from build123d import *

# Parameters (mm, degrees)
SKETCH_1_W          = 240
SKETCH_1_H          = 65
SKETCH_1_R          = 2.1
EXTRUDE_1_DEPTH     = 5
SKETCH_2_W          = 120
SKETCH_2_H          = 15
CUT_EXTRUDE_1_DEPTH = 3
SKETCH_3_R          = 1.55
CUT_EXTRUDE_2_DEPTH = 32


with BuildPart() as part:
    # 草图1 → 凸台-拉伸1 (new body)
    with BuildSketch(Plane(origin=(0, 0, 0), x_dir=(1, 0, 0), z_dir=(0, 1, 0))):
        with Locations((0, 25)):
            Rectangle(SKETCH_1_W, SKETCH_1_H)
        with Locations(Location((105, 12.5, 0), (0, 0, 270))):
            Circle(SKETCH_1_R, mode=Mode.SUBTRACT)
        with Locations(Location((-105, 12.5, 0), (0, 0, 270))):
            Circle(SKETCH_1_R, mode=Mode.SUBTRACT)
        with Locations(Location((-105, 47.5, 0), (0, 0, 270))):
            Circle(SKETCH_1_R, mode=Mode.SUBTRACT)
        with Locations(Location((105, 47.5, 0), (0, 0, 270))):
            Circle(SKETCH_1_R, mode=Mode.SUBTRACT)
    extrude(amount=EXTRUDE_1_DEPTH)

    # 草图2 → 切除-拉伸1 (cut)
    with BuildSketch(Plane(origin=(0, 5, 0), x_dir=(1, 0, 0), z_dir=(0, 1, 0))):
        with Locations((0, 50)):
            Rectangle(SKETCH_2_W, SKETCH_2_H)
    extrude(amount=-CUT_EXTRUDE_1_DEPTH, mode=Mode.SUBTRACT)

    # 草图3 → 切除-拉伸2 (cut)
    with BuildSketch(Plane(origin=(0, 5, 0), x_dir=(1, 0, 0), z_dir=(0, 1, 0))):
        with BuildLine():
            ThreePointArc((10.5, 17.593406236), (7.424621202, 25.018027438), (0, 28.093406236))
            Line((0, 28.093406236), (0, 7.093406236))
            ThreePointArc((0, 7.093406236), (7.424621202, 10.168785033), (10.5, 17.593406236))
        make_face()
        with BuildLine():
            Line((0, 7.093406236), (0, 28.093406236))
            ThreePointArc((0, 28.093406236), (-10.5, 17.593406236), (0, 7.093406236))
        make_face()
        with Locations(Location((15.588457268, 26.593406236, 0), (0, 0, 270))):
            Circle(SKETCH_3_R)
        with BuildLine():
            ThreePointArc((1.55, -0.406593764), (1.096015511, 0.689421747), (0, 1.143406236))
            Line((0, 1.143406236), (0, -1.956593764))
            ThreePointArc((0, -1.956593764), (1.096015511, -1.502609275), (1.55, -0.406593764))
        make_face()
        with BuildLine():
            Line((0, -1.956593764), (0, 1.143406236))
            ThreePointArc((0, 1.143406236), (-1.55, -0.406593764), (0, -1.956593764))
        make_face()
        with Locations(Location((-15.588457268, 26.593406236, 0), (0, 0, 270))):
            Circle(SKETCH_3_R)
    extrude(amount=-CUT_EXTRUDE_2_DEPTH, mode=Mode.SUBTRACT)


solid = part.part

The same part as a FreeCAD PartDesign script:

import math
import FreeCAD as App
import Part
import Sketcher

V = App.Vector

doc = App.newDocument("Part")
body = doc.addObject("PartDesign::Body", "Body")

sketch1 = body.newObject("Sketcher::SketchObject", "Sketch")
sketch1.AttachmentSupport = (doc.getObject("XZ_Plane"), [""])
sketch1.MapMode = "FlatFace"
sketch1.addGeometry([
    Part.LineSegment(V(-120, -57.5, 0), V(-120, 7.5, 0)),
    Part.LineSegment(V(-120, 7.5, 0), V(120, 7.5, 0)),
    Part.LineSegment(V(120, 7.5, 0), V(120, -57.5, 0)),
    Part.LineSegment(V(120, -57.5, 0), V(-120, -57.5, 0)),
    Part.Circle(V(-105, -12.5, 0), V(0, 0, 1), 2.1),
    Part.Circle(V(105, -12.5, 0), V(0, 0, 1), 2.1),
    Part.Circle(V(-105, -47.5, 0), V(0, 0, 1), 2.1),
    Part.Circle(V(105, -47.5, 0), V(0, 0, 1), 2.1),
], False)
sketch1.addConstraint([
    Sketcher.Constraint("Coincident", 0, 2, 1, 1),
    Sketcher.Constraint("Coincident", 1, 2, 2, 1),
    Sketcher.Constraint("Coincident", 2, 2, 3, 1),
    Sketcher.Constraint("Coincident", 3, 2, 0, 1),
    Sketcher.Constraint("Vertical", 0),
    Sketcher.Constraint("Horizontal", 1),
    Sketcher.Constraint("Vertical", 2),
    Sketcher.Constraint("Horizontal", 3),
    Sketcher.Constraint("Equal", 4, 5),
    Sketcher.Constraint("Equal", 5, 6),
    Sketcher.Constraint("Equal", 6, 7),
    Sketcher.Constraint("Symmetric", 4, 3, 5, 3, -2),
    Sketcher.Constraint("Symmetric", 6, 3, 7, 3, -2),
    Sketcher.Constraint("Vertical", 4, 3, 6, 3),
    Sketcher.Constraint("Diameter", 4, 4.2),
    Sketcher.Constraint("DistanceX", 1, 1, 1, 2, 240.0),
    Sketcher.Constraint("DistanceY", 0, 1, 0, 2, 65.0),
    Sketcher.Constraint("DistanceX", 4, 3, -1, 1, 105.0),
    Sketcher.Constraint("DistanceX", 0, 2, -1, 1, 120.0),
    Sketcher.Constraint("DistanceY", 6, 3, 4, 3, 35.0),
    Sketcher.Constraint("DistanceY", 4, 3, 0, 2, 20.0),
    Sketcher.Constraint("DistanceY", 4, 3, -1, 1, 12.5),
])
pad1 = body.newObject("PartDesign::Pad", "Pad")
pad1.Profile = sketch1
pad1.Length = 5
pad1.Reversed = True

sketch2 = body.newObject("Sketcher::SketchObject", "Sketch001")
sketch2.AttachmentSupport = (doc.getObject("XZ_Plane"), [""])
sketch2.MapMode = "FlatFace"
sketch2.AttachmentOffset = App.Placement(V(0, 0, -5), App.Rotation())
sketch2.addGeometry([
    Part.LineSegment(V(-60, -57.5, 0), V(-60, -42.5, 0)),
    Part.LineSegment(V(-60, -42.5, 0), V(60, -42.5, 0)),
    Part.LineSegment(V(60, -42.5, 0), V(60, -57.5, 0)),
    Part.LineSegment(V(60, -57.5, 0), V(-60, -57.5, 0)),
], False)
sketch2.addConstraint([
    Sketcher.Constraint("Coincident", 0, 2, 1, 1),
    Sketcher.Constraint("Coincident", 1, 2, 2, 1),
    Sketcher.Constraint("Coincident", 2, 2, 3, 1),
    Sketcher.Constraint("Coincident", 3, 2, 0, 1),
    Sketcher.Constraint("Vertical", 0),
    Sketcher.Constraint("Horizontal", 1),
    Sketcher.Constraint("Vertical", 2),
    Sketcher.Constraint("Horizontal", 3),
    Sketcher.Constraint("DistanceX", 1, 1, 1, 2, 120.0),
    Sketcher.Constraint("DistanceY", 0, 1, 0, 2, 15.0),
    Sketcher.Constraint("DistanceX", 0, 2, -1, 1, 60.0),
    Sketcher.Constraint("DistanceY", 0, 2, -1, 1, 42.5),
])
pocket1 = body.newObject("PartDesign::Pocket", "Pocket")
pocket1.Profile = sketch2
pocket1.Length = 3
pocket1.Reversed = True

sketch3 = body.newObject("Sketcher::SketchObject", "Sketch002")
sketch3.AttachmentSupport = (doc.getObject("XZ_Plane"), [""])
sketch3.MapMode = "FlatFace"
sketch3.AttachmentOffset = App.Placement(V(0, 0, -5), App.Rotation())
sketch3.addGeometry([
    Part.ArcOfCircle(Part.Circle(V(0, -17.593406, 0), V(0, 0, 1), 10.5), math.radians(-90), math.radians(0)),
    Part.ArcOfCircle(Part.Circle(V(0, -17.593406, 0), V(0, 0, 1), 10.5), math.radians(90), math.radians(270)),
    Part.ArcOfCircle(Part.Circle(V(0, -17.593406, 0), V(0, 0, 1), 10.5), math.radians(0), math.radians(90)),
    Part.Circle(V(15.588457, -26.593406, 0), V(0, 0, 1), 1.55),
    Part.ArcOfCircle(Part.Circle(V(0, 0.406594, 0), V(0, 0, 1), 1.55), math.radians(-90), math.radians(0)),
    Part.ArcOfCircle(Part.Circle(V(0, 0.406594, 0), V(0, 0, 1), 1.55), math.radians(90), math.radians(270)),
    Part.ArcOfCircle(Part.Circle(V(0, 0.406594, 0), V(0, 0, 1), 1.55), math.radians(0), math.radians(90)),
    Part.Circle(V(-15.588457, -26.593406, 0), V(0, 0, 1), 1.55),
], False)
sketch3.addConstraint([
    Sketcher.Constraint("Tangent", 0, 1, 1, 2),
    Sketcher.Constraint("Tangent", 1, 1, 2, 2),
    Sketcher.Constraint("Tangent", 2, 1, 0, 2),
    Sketcher.Constraint("Tangent", 4, 1, 5, 2),
    Sketcher.Constraint("Tangent", 5, 1, 6, 2),
    Sketcher.Constraint("Tangent", 6, 1, 4, 2),
    Sketcher.Constraint("Equal", 3, 4),
    Sketcher.Constraint("Equal", 6, 7),
    Sketcher.Constraint("Symmetric", 3, 3, 7, 3, -2),
    Sketcher.Constraint("PointOnObject", 0, 3, -2),
    Sketcher.Constraint("PointOnObject", 4, 3, -2),
    Sketcher.Constraint("PointOnObject", 0, 1, -2),
    Sketcher.Constraint("PointOnObject", 1, 1, -2),
    Sketcher.Constraint("PointOnObject", 4, 1, -2),
    Sketcher.Constraint("PointOnObject", 5, 1, -2),
    Sketcher.Constraint("Horizontal", 1, 3, 2, 1),
    Sketcher.Constraint("Horizontal", 5, 3, 6, 1),
    Sketcher.Constraint("Diameter", 3, 3.1),
    Sketcher.Constraint("Radius", 0, 10.5),
    Sketcher.Constraint("DistanceY", 3, 3, 1, 3, 9.0),
    Sketcher.Constraint("DistanceY", 0, 3, 4, 3, 18.0),
    Sketcher.Constraint("DistanceY", 0, 3, -1, 1, 17.593406),
    Sketcher.Constraint("DistanceX", -1, 1, 3, 3, 15.588457),
])
pocket2 = body.newObject("PartDesign::Pocket", "Pocket001")
pocket2.Profile = sketch3
pocket2.Length = 32
pocket2.Reversed = True

doc.recompute()
